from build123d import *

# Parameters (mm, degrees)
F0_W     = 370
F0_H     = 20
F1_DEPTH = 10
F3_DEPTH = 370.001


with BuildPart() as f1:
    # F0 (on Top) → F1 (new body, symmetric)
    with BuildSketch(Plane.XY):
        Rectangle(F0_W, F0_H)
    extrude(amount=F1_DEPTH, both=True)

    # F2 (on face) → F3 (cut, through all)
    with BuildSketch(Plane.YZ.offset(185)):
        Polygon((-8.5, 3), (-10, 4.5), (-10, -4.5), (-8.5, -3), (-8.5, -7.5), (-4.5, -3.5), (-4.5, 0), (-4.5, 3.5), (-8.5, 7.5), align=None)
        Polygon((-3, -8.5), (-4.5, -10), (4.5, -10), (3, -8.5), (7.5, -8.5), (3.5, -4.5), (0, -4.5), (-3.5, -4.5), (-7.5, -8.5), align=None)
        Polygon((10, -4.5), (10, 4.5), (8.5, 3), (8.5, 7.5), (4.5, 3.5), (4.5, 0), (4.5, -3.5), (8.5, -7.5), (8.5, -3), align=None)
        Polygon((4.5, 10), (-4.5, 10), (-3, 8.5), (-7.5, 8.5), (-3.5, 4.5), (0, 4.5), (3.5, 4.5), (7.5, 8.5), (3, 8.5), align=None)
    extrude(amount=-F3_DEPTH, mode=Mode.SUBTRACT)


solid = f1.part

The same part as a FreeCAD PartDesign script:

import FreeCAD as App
import Part
import Sketcher
Q = App.Units.Quantity

doc = App.newDocument("Part")
body = doc.addObject("PartDesign::Body", "Body")

# Sketch on XY plane
sketch1 = body.newObject("Sketcher::SketchObject", "Sketch")
sketch1.AttachmentSupport = (doc.getObject("XY_Plane"), [""])
sketch1.MapMode = "FlatFace"
sketch1.addGeometry([
    Part.LineSegment(App.Vector(-185, 10, 0), App.Vector(-185, -10, 0)),
    Part.LineSegment(App.Vector(-185, -10, 0), App.Vector(185, -10, 0)),
    Part.LineSegment(App.Vector(185, -10, 0), App.Vector(185, 10, 0)),
    Part.LineSegment(App.Vector(185, 10, 0), App.Vector(-185, 10, 0)),
], False)
sketch1.addConstraint([
    Sketcher.Constraint("Coincident", 0, 2, 1, 1),
    Sketcher.Constraint("Coincident", 1, 2, 2, 1),
    Sketcher.Constraint("Coincident", 2, 2, 3, 1),
    Sketcher.Constraint("Coincident", 3, 2, 0, 1),
    Sketcher.Constraint("Vertical", 0),
    Sketcher.Constraint("Horizontal", 1),
    Sketcher.Constraint("Vertical", 2),
    Sketcher.Constraint("Horizontal", 3),
    Sketcher.Constraint("Symmetric", 0, 2, 2, 2, -1, 1),
    Sketcher.Constraint("DistanceX", 1, 1, 1, 2, Q("370 mm")),
    Sketcher.Constraint("DistanceY", 0, 2, 0, 1, Q("20 mm")),
])
pad1 = body.newObject("PartDesign::Pad", "Pad")
pad1.Profile = sketch1
pad1.Length = 20
pad1.Midplane = True

# Sketch on YZ plane
sketch2 = body.newObject("Sketcher::SketchObject", "Sketch001")
sketch2.AttachmentSupport = (doc.getObject("YZ_Plane"), [""])
sketch2.MapMode = "FlatFace"
sketch2.AttachmentOffset = App.Placement(App.Vector(0, 0, 185), App.Rotation())
sketch2.addGeometry([
    Part.LineSegment(App.Vector(-8.5, 3, 0), App.Vector(-10, 4.5, 0)),  # 0
    Part.LineSegment(App.Vector(-10, 4.5, 0), App.Vector(-10, -4.5, 0)),  # 1
    Part.LineSegment(App.Vector(-10, -4.5, 0), App.Vector(-8.5, -3, 0)),  # 2
    Part.LineSegment(App.Vector(-8.5, -3, 0), App.Vector(-8.5, -7.5, 0)),  # 3
    Part.LineSegment(App.Vector(-8.5, -7.5, 0), App.Vector(-4.5, -3.5, 0)),  # 4
    Part.LineSegment(App.Vector(-4.5, -3.5, 0), App.Vector(-4.5, 3.5, 0)),  # 5
    Part.LineSegment(App.Vector(-4.5, 3.5, 0), App.Vector(-8.5, 7.5, 0)),  # 6
    Part.LineSegment(App.Vector(-8.5, 7.5, 0), App.Vector(-8.5, 3, 0)),  # 7
    Part.LineSegment(App.Vector(-3, -8.5, 0), App.Vector(-4.5, -10, 0)),  # 8
    Part.LineSegment(App.Vector(-4.5, -10, 0), App.Vector(4.5, -10, 0)),  # 9
    Part.LineSegment(App.Vector(4.5, -10, 0), App.Vector(3, -8.5, 0)),  # 10
    Part.LineSegment(App.Vector(3, -8.5, 0), App.Vector(7.5, -8.5, 0)),  # 11
    Part.LineSegment(App.Vector(7.5, -8.5, 0), App.Vector(3.5, -4.5, 0)),  # 12
    Part.LineSegment(App.Vector(3.5, -4.5, 0), App.Vector(-3.5, -4.5, 0)),  # 13
    Part.LineSegment(App.Vector(-3.5, -4.5, 0), App.Vector(-7.5, -8.5, 0)),  # 14
    Part.LineSegment(App.Vector(-7.5, -8.5, 0), App.Vector(-3, -8.5, 0)),  # 15
    Part.LineSegment(App.Vector(10, -4.5, 0), App.Vector(10, 4.5, 0)),  # 16
    Part.LineSegment(App.Vector(10, 4.5, 0), App.Vector(8.5, 3, 0)),  # 17
    Part.LineSegment(App.Vector(8.5, 3, 0), App.Vector(8.5, 7.5, 0)),  # 18
    Part.LineSegment(App.Vector(8.5, 7.5, 0), App.Vector(4.5, 3.5, 0)),  # 19
    Part.LineSegment(App.Vector(4.5, 3.5, 0), App.Vector(4.5, -3.5, 0)),  # 20
    Part.LineSegment(App.Vector(4.5, -3.5, 0), App.Vector(8.5, -7.5, 0)),  # 21
    Part.LineSegment(App.Vector(8.5, -7.5, 0), App.Vector(8.5, -3, 0)),  # 22
    Part.LineSegment(App.Vector(8.5, -3, 0), App.Vector(10, -4.5, 0)),  # 23
    Part.LineSegment(App.Vector(4.5, 10, 0), App.Vector(-4.5, 10, 0)),  # 24
    Part.LineSegment(App.Vector(-4.5, 10, 0), App.Vector(-3, 8.5, 0)),  # 25
    Part.LineSegment(App.Vector(-3, 8.5, 0), App.Vector(-7.5, 8.5, 0)),  # 26
    Part.LineSegment(App.Vector(-7.5, 8.5, 0), App.Vector(-3.5, 4.5, 0)),  # 27
    Part.LineSegment(App.Vector(-3.5, 4.5, 0), App.Vector(3.5, 4.5, 0)),  # 28
    Part.LineSegment(App.Vector(3.5, 4.5, 0), App.Vector(7.5, 8.5, 0)),  # 29
    Part.LineSegment(App.Vector(7.5, 8.5, 0), App.Vector(3, 8.5, 0)),  # 30
    Part.LineSegment(App.Vector(3, 8.5, 0), App.Vector(4.5, 10, 0)),  # 31
], False)
sketch2.addConstraint([
    Sketcher.Constraint("Coincident", 0, 2, 1, 1),
    Sketcher.Constraint("Coincident", 1, 2, 2, 1),
    Sketcher.Constraint("Coincident", 2, 2, 3, 1),
    Sketcher.Constraint("Coincident", 3, 2, 4, 1),
    Sketcher.Constraint("Coincident", 4, 2, 5, 1),
    Sketcher.Constraint("Coincident", 5, 2, 6, 1),
    Sketcher.Constraint("Coincident", 6, 2, 7, 1),
    Sketcher.Constraint("Coincident", 7, 2, 0, 1),
    Sketcher.Constraint("Coincident", 8, 2, 9, 1),
    Sketcher.Constraint("Coincident", 9, 2, 10, 1),
    Sketcher.Constraint("Coincident", 10, 2, 11, 1),
    Sketcher.Constraint("Coincident", 11, 2, 12, 1),
    Sketcher.Constraint("Coincident", 12, 2, 13, 1),
    Sketcher.Constraint("Coincident", 13, 2, 14, 1),
    Sketcher.Constraint("Coincident", 14, 2, 15, 1),
    Sketcher.Constraint("Coincident", 15, 2, 8, 1),
    Sketcher.Constraint("Coincident", 16, 2, 17, 1),
    Sketcher.Constraint("Coincident", 17, 2, 18, 1),
    Sketcher.Constraint("Coincident", 18, 2, 19, 1),
    Sketcher.Constraint("Coincident", 19, 2, 20, 1),
    Sketcher.Constraint("Coincident", 20, 2, 21, 1),
    Sketcher.Constraint("Coincident", 21, 2, 22, 1),
    Sketcher.Constraint("Coincident", 22, 2, 23, 1),
    Sketcher.Constraint("Coincident", 23, 2, 16, 1),
    Sketcher.Constraint("Coincident", 24, 2, 25, 1),
    Sketcher.Constraint("Coincident", 25, 2, 26, 1),
    Sketcher.Constraint("Coincident", 26, 2, 27, 1),
    Sketcher.Constraint("Coincident", 27, 2, 28, 1),
    Sketcher.Constraint("Coincident", 28, 2, 29, 1),
    Sketcher.Constraint("Coincident", 29, 2, 30, 1),
    Sketcher.Constraint("Coincident", 30, 2, 31, 1),
    Sketcher.Constraint("Coincident", 31, 2, 24, 1),
    Sketcher.Constraint("Vertical", 1),
    Sketcher.Constraint("Vertical", 3),
    Sketcher.Constraint("Vertical", 5),
    Sketcher.Constraint("Vertical", 7),
    Sketcher.Constraint("Horizontal", 9),
    Sketcher.Constraint("Horizontal", 11),
    Sketcher.Constraint("Horizontal", 13),
    Sketcher.Constraint("Horizontal", 15),
    Sketcher.Constraint("Vertical", 16),
    Sketcher.Constraint("Vertical", 18),
    Sketcher.Constraint("Vertical", 20),
    Sketcher.Constraint("Vertical", 22),
    Sketcher.Constraint("Horizontal", 24),
    Sketcher.Constraint("Horizontal", 26),
    Sketcher.Constraint("Horizontal", 28),
    Sketcher.Constraint("Horizontal", 30),
    Sketcher.Constraint("Symmetric", 1, 2, 16, 2, -1, 1),
    Sketcher.Constraint("Symmetric", 2, 2, 17, 2, -1, 1),
    Sketcher.Constraint("Symmetric", 4, 2, 19, 2, -1, 1),
    Sketcher.Constraint("Symmetric", 6, 2, 21, 2, -1, 1),
    Sketcher.Constraint("Symmetric", 9, 2, 24, 2, -1, 1),
    Sketcher.Constraint("Symmetric", 10, 2, 25, 2, -1, 1),
    Sketcher.Constraint("Symmetric", 12, 2, 27, 2, -1, 1),
    Sketcher.Constraint("Symmetric", 14, 2, 29, 2, -1, 1),
    Sketcher.Constraint("Symmetric", 11, 2, 14, 2, -2),
    Sketcher.Constraint("Symmetric", 7, 2, 17, 2, -2),
    Sketcher.Constraint("Perpendicular", 0, 2),
    Sketcher.Constraint("Parallel", 2, 4),
    Sketcher.Constraint("Perpendicular", 4, 6),
    Sketcher.Constraint("Perpendicular", 6, 8),
    Sketcher.Constraint("Perpendicular", 8, 10),
    Sketcher.Constraint("Parallel", 10, 12),
    Sketcher.Constraint("Perpendicular", 12, 14),
    Sketcher.Constraint("Parallel", 17, 19),
    Sketcher.Constraint("Perpendicular", 19, 21),
    Sketcher.Constraint("Parallel", 21, 23),
    Sketcher.Constraint("Parallel", 25, 27),
    Sketcher.Constraint("Perpendicular", 27, 29),
    Sketcher.Constraint("Parallel", 29, 31),
    Sketcher.Constraint("Horizontal", 1, 2, 12, 2),
    Sketcher.Constraint("Horizontal", 0, 2, 16, 2),
    Sketcher.Constraint("Horizontal", 6, 2, 18, 2),
    Sketcher.Constraint("Horizontal", 2, 2, 22, 2),
    Sketcher.Constraint("Vertical", 5, 2, 8, 2),
    Sketcher.Constraint("Vertical", 9, 2, 19, 2),
    Sketcher.Constraint("Vertical", 10, 2, 30, 2),
    Sketcher.Constraint("Equal", 24, 1),
    Sketcher.Constraint("Equal", 30, 3),
    Sketcher.Constraint("Equal", 28, 5),
    Sketcher.Constraint("Equal", 2, 8),
    Sketcher.Constraint("DistanceX", 9, 1, 9, 2, Q("9 mm")),
    Sketcher.Constraint("DistanceX", 13, 2, 13, 1, Q("7 mm")),
    Sketcher.Constraint("DistanceX", 11, 1, 11, 2, Q("4.5 mm")),
    Sketcher.Constraint("DistanceY", 2, 2, -1, 1, Q("3 mm")),
])
pocket1 = body.newObject("PartDesign::Pocket", "Pocket")
pocket1.Profile = sketch2
pocket1.Type = "ThroughAll"

doc.recompute()
